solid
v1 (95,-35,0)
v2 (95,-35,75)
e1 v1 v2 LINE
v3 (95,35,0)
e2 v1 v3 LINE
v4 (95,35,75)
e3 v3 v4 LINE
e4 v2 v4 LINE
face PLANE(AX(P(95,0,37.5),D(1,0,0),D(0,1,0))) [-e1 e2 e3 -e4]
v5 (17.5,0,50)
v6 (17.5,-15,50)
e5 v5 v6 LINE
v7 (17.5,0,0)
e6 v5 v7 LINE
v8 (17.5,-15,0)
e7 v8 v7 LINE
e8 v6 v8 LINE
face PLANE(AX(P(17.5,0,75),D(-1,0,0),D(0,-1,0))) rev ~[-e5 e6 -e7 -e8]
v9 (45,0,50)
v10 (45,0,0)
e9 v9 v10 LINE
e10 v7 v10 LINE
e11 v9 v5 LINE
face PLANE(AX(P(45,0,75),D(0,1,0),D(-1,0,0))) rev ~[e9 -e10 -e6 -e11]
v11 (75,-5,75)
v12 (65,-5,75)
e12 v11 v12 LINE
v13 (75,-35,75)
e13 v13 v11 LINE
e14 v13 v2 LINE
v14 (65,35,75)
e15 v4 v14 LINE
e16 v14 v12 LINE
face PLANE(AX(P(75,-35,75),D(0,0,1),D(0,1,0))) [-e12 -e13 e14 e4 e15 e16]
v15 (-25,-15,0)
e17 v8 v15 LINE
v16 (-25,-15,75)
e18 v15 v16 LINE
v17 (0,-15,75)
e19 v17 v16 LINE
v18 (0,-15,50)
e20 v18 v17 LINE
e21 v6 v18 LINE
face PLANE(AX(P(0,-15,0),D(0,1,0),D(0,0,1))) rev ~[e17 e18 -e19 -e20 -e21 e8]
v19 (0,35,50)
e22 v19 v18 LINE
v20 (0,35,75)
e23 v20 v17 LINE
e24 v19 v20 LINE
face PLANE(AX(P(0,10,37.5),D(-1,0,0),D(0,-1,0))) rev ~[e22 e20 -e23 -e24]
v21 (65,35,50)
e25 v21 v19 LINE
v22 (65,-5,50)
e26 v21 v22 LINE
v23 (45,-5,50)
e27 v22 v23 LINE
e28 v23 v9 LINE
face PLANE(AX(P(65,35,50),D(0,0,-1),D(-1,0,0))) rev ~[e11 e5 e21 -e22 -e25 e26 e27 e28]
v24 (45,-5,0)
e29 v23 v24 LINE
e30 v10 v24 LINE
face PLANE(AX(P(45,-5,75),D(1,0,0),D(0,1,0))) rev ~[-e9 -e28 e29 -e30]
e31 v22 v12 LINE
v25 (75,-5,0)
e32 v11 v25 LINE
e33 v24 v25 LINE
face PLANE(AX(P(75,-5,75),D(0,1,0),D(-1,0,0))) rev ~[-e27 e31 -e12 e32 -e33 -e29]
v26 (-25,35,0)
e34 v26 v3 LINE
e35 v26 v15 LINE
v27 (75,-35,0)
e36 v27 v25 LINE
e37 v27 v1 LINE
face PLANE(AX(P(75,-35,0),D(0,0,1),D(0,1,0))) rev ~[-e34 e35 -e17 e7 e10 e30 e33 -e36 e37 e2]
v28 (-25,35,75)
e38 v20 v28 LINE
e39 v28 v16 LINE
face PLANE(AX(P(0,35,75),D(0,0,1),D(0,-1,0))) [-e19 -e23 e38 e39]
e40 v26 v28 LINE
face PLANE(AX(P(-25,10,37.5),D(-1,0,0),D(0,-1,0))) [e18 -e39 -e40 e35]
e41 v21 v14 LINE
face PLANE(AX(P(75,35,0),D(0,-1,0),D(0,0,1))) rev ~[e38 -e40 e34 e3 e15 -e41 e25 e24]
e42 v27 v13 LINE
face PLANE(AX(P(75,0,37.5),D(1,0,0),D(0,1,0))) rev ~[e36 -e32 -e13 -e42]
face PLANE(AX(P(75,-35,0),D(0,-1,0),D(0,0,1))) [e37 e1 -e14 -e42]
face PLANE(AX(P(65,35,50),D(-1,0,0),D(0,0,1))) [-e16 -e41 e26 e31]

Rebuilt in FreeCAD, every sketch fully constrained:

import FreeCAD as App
import Part
import Sketcher
Q = App.Units.Quantity


def add_polygon(sketch, points):
    """Adds a closed chain of lines whose ends are joined by coincident constraints."""
    first, n = sketch.GeometryCount, len(points)
    for a, b in zip(points, points[1:] + points[:1]):
        sketch.addGeometry(Part.LineSegment(App.Vector(*a, 0), App.Vector(*b, 0)), False)
    for i in range(n):
        sketch.addConstraint(Sketcher.Constraint("Coincident", first + i, 2, first + (i + 1) % n, 1))

doc = App.newDocument("Part")
body = doc.addObject("PartDesign::Body", "Body")

# Sketch on XZ plane
sketch1 = body.newObject("Sketcher::SketchObject", "Sketch")
sketch1.AttachmentSupport = (doc.getObject("XZ_Plane"), [""])
sketch1.MapMode = "FlatFace"
add_polygon(sketch1, [(0, 75), (0, 0), (75, 0), (75, 75)])  # lines 0-3
sketch1.addConstraint([
    Sketcher.Constraint("Vertical", 0),
    Sketcher.Constraint("Horizontal", 1),
    Sketcher.Constraint("Vertical", 2),
    Sketcher.Constraint("Horizontal", 3),
    Sketcher.Constraint("Coincident", 0, 2, -1, 1),
    Sketcher.Constraint("Equal", 3, 0),
    Sketcher.Constraint("DistanceX", 1, 1, 1, 2, Q("75 mm")),
])
pad1 = body.newObject("PartDesign::Pad", "Pad")
pad1.Profile = sketch1
pad1.Length = 70
pad1.Midplane = True

# Sketch on XY plane
sketch2 = body.newObject("Sketcher::SketchObject", "Sketch001")
sketch2.AttachmentSupport = (doc.getObject("XY_Plane"), [""])
sketch2.MapMode = "FlatFace"
sketch2.AttachmentOffset = App.Placement(App.Vector(0, 0, 75), App.Rotation())
add_polygon(sketch2, [(18, -15), (0, -15), (0, -35), (75, -35), (75, -5), (45, -5), (45, 0), (18, 0)])  # lines 0-7
sketch2.addConstraint([
    Sketcher.Constraint("Horizontal", 0),
    Sketcher.Constraint("Vertical", 1),
    Sketcher.Constraint("Horizontal", 2),
    Sketcher.Constraint("Vertical", 3),
    Sketcher.Constraint("Horizontal", 4),
    Sketcher.Constraint("Vertical", 5),
    Sketcher.Constraint("Horizontal", 6),
    Sketcher.Constraint("Vertical", 7),
    Sketcher.Constraint("PointOnObject", 0, 2, -2),
    Sketcher.Constraint("PointOnObject", 5, 2, -1),
    Sketcher.Constraint("Equal", 4, 3),
    Sketcher.Constraint("DistanceX", 2, 1, 2, 2, Q("75 mm")),
    Sketcher.Constraint("DistanceX", 4, 2, 4, 1, Q("30 mm")),
    Sketcher.Constraint("DistanceY", 1, 2, 1, 1, Q("20 mm")),
    Sketcher.Constraint("DistanceY", 5, 1, 5, 2, Q("5 mm")),
    Sketcher.Constraint("DistanceX", 0, 2, 0, 1, Q("17.5 mm")),
])
pocket1 = body.newObject("PartDesign::Pocket", "Pocket")
pocket1.Profile = sketch2
pocket1.Type = "ThroughAll"

# Sketch on XZ plane
sketch3 = body.newObject("Sketcher::SketchObject", "Sketch002")
sketch3.AttachmentSupport = (doc.getObject("XZ_Plane"), [""])
sketch3.MapMode = "FlatFace"
sketch3.AttachmentOffset = App.Placement(App.Vector(0, 0, -35), App.Rotation())
add_polygon(sketch3, [(65, 75), (65, 50), (0, 50), (0, 75)])  # lines 0-3
sketch3.addConstraint([
    Sketcher.Constraint("Vertical", 0),
    Sketcher.Constraint("Horizontal", 1),
    Sketcher.Constraint("Vertical", 2),
    Sketcher.Constraint("Horizontal", 3),
    Sketcher.Constraint("PointOnObject", 1, 2, -2),
    Sketcher.Constraint("DistanceX", 1, 2, 1, 1, Q("65 mm")),
    Sketcher.Constraint("DistanceY", 0, 2, 0, 1, Q("25 mm")),
    Sketcher.Constraint("DistanceY", -1, 1, 0, 2, Q("50 mm")),
])
pocket2 = body.newObject("PartDesign::Pocket", "Pocket001")
pocket2.Profile = sketch3
pocket2.Type = "ThroughAll"
pocket2.Reversed = True

# Sketch on YZ plane
sketch4 = body.newObject("Sketcher::SketchObject", "Sketch003")
sketch4.AttachmentSupport = (doc.getObject("YZ_Plane"), [""])
sketch4.MapMode = "FlatFace"
add_polygon(sketch4, [(35, 75), (35, 0), (-15, 0), (-15, 75)])  # lines 0-3
sketch4.addConstraint([
    Sketcher.Constraint("Vertical", 0),
    Sketcher.Constraint("Horizontal", 1),
    Sketcher.Constraint("Vertical", 2),
    Sketcher.Constraint("Horizontal", 3),
    Sketcher.Constraint("PointOnObject", 0, 2, -1),
    Sketcher.Constraint("DistanceX", 1, 2, 1, 1, Q("50 mm")),
    Sketcher.Constraint("DistanceY", 0, 2, 0, 1, Q("75 mm")),
    Sketcher.Constraint("DistanceX", -1, 1, 0, 2, Q("35 mm")),
])
pad2 = body.newObject("PartDesign::Pad", "Pad001")
pad2.Profile = sketch4
pad2.Length = 25
pad2.Reversed = True

# Sketch on YZ plane
sketch5 = body.newObject("Sketcher::SketchObject", "Sketch004")
sketch5.AttachmentSupport = (doc.getObject("YZ_Plane"), [""])
sketch5.MapMode = "FlatFace"
sketch5.AttachmentOffset = App.Placement(App.Vector(0, 0, 75), App.Rotation())
add_polygon(sketch5, [(-35, 75), (-35, 0), (35, 0), (35, 75)])  # lines 0-3
sketch5.addConstraint([
    Sketcher.Constraint("Vertical", 0),
    Sketcher.Constraint("Horizontal", 1),
    Sketcher.Constraint("Vertical", 2),
    Sketcher.Constraint("Horizontal", 3),
    Sketcher.Constraint("Symmetric", 0, 2, 1, 2, -1, 1),
    Sketcher.Constraint("DistanceX", 1, 1, 1, 2, Q("70 mm")),
    Sketcher.Constraint("DistanceY", 0, 2, 0, 1, Q("75 mm")),
])
pad3 = body.newObject("PartDesign::Pad", "Pad002")
pad3.Profile = sketch5
pad3.Length = 20

doc.recompute()
